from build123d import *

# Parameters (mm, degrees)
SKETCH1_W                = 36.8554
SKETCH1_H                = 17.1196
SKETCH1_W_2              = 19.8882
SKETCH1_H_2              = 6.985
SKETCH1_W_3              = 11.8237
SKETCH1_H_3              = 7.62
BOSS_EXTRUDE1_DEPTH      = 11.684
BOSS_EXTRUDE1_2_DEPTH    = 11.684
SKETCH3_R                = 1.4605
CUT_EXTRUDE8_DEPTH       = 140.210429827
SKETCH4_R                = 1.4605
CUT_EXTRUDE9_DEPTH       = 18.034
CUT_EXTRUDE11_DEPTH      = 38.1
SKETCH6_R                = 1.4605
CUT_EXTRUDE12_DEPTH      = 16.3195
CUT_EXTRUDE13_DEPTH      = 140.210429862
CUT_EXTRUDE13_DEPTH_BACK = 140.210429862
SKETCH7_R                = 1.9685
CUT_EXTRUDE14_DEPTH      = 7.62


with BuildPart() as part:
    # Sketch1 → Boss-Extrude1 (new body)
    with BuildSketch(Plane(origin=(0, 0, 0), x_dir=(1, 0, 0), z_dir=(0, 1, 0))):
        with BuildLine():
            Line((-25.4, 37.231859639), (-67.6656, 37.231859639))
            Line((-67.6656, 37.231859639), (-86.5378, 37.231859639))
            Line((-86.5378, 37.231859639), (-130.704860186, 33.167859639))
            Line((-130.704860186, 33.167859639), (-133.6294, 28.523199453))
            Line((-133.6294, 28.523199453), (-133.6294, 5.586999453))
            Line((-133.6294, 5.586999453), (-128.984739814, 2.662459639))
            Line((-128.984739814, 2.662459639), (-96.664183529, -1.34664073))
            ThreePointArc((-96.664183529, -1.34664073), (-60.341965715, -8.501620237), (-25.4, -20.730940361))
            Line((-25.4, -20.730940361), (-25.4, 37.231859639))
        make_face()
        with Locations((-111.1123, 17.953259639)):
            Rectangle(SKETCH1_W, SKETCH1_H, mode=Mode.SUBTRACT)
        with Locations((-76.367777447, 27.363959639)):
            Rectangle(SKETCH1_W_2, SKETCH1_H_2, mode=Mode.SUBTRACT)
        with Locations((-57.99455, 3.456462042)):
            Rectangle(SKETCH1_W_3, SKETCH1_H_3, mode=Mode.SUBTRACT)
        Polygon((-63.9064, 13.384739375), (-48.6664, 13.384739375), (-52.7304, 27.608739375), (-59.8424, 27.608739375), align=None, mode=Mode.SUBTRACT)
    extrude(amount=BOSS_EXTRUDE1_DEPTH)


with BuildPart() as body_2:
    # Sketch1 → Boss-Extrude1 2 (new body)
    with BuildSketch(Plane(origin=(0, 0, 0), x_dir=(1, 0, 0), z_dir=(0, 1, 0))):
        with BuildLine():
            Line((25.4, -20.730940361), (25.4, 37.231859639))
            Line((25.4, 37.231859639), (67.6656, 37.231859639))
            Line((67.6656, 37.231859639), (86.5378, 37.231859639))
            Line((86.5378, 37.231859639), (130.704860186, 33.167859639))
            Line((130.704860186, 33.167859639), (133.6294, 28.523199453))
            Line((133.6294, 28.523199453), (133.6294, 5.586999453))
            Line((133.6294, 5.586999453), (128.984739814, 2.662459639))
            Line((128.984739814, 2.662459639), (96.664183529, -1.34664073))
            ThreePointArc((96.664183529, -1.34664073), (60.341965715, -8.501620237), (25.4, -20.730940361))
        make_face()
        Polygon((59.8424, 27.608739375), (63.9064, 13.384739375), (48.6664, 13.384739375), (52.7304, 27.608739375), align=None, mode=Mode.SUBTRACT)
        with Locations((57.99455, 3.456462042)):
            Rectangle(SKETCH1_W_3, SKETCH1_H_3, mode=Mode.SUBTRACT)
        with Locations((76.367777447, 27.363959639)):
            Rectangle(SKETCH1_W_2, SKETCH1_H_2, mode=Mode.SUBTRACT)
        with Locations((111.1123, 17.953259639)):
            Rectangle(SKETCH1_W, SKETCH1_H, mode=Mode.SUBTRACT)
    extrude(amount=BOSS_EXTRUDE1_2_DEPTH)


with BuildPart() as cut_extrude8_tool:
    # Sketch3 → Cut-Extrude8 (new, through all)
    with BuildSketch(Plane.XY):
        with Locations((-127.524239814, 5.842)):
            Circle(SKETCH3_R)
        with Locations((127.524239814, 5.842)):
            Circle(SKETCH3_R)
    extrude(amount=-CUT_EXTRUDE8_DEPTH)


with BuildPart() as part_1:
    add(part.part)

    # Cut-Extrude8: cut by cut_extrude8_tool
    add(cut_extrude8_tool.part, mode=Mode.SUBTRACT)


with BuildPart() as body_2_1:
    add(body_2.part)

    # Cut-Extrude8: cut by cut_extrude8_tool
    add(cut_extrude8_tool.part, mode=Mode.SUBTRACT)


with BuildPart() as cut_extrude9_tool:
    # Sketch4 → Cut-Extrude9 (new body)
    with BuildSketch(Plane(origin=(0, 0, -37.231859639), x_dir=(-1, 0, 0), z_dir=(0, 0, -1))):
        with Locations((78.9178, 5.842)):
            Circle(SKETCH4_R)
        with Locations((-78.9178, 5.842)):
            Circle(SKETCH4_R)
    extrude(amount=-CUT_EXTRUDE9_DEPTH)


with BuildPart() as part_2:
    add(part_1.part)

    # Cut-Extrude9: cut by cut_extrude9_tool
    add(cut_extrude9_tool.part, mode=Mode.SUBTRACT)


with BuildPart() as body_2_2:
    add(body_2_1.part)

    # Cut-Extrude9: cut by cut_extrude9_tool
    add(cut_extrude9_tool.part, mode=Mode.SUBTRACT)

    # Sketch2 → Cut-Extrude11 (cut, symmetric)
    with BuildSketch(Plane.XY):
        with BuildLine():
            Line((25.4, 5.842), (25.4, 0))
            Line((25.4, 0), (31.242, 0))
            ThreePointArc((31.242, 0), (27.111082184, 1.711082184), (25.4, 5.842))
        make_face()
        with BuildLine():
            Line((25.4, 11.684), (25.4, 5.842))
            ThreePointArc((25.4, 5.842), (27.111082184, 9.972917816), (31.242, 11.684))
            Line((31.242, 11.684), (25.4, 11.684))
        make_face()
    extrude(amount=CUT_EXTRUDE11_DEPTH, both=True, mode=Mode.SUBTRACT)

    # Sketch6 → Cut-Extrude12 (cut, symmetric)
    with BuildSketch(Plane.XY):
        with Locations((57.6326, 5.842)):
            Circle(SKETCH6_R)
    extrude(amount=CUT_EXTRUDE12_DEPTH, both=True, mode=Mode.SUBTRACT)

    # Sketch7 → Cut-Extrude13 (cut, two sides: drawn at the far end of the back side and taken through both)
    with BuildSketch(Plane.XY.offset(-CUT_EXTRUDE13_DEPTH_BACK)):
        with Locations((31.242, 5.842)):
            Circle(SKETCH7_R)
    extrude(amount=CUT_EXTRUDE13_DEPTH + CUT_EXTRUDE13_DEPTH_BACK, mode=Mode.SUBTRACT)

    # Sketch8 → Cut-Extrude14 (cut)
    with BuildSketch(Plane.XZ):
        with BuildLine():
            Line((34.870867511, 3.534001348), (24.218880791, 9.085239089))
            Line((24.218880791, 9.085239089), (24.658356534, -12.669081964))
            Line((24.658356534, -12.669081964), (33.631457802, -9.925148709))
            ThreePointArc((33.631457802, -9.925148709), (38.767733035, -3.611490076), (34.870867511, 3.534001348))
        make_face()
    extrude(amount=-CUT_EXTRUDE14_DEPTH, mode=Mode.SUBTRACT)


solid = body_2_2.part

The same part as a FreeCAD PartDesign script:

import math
import FreeCAD as App
import Part
import Sketcher
Q = App.Units.Quantity

doc = App.newDocument("Part")
params = doc.addObject("Spreadsheet::Sheet", "Params")
for row, (alias, value) in enumerate([
    ("sketch1_width", "0.6 in"),
    ("sketch1_height", "0.3 in"),
    ("sketch1_width2", "0.28 in"),
    ("sketch1_width3", "2.407 in"),
    ("sketch1_width4", "1.451 in"),
    ("pad1_length", "0.46 in"),
    ("sketch2_width", "0.6 in"),
    ("sketch2_height", "0.3 in"),
    ("sketch2_width2", "0.28 in"),
    ("sketch2_width3", "2.407 in"),
    ("sketch2_width4", "1.451 in"),
    ("pad2_length", "0.46 in"),
    ("sketch3_diameter", "0.115 in"),
    ("pad3_length", "140.21043 mm"),
    ("sketch4_diameter", "0.115 in"),
    ("pad4_length", "0.71 in"),
    ("sketch5_radius", "0.23 in"),
    ("pocket1_length", "3 in"),
    ("sketch6_diameter", "0.115 in"),
    ("pocket2_length", "1.285 in"),
    ("sketch7_diameter", "0.155 in"),
    ("pocket4_length", "0.3 in"),
], start=1):
    params.set(f"A{row}", alias)
    params.set(f"B{row}", "=" + value)
    params.setAlias(f"B{row}", alias)

body = doc.addObject("PartDesign::Body", "Body")

# Sketch on XZ plane
sketch1 = doc.addObject("Sketcher::SketchObject", "Sketch")
body.addObject(sketch1)
sketch1.AttachmentSupport = (doc.XZ_Plane, [""])
sketch1.MapMode = "FlatFace"
sketch1.addGeometry(Part.LineSegment(App.Vector(-25, -37, 0), App.Vector(-87, -37, 0)), False)
sketch1.addGeometry(Part.LineSegment(App.Vector(-87, -37, 0), App.Vector(-131, -33, 0)), False)
sketch1.addGeometry(Part.LineSegment(App.Vector(-131, -33, 0), App.Vector(-134, -29, 0)), False)
sketch1.addGeometry(Part.LineSegment(App.Vector(-134, -29, 0), App.Vector(-134, -6, 0)), False)
sketch1.addGeometry(Part.LineSegment(App.Vector(-134, -6, 0), App.Vector(-129, -3, 0)), False)
sketch1.addGeometry(Part.LineSegment(App.Vector(-129, -3, 0), App.Vector(-97, 1, 0)), False)
sketch1.addGeometry(Part.ArcOfCircle(Part.Circle(App.Vector(-129, 260, 0), App.Vector(0, 0, 1), 261), math.radians(-82.93), math.radians(-66.64)), False)
sketch1.addGeometry(Part.LineSegment(App.Vector(-25, 21, 0), App.Vector(-25, -37, 0)), False)
sketch1.addGeometry(Part.LineSegment(App.Vector(-52, 0, 0), App.Vector(-64, 0, 0)), False)
sketch1.addGeometry(Part.LineSegment(App.Vector(-64, 0, 0), App.Vector(-64, -7, 0)), False)
sketch1.addGeometry(Part.LineSegment(App.Vector(-64, -7, 0), App.Vector(-52, -7, 0)), False)
sketch1.addGeometry(Part.LineSegment(App.Vector(-52, -7, 0), App.Vector(-52, 0, 0)), False)
sketch1.addGeometry(Part.LineSegment(App.Vector(-93, -9, 0), App.Vector(-130, -9, 0)), False)
sketch1.addGeometry(Part.LineSegment(App.Vector(-130, -9, 0), App.Vector(-130, -27, 0)), False)
sketch1.addGeometry(Part.LineSegment(App.Vector(-130, -27, 0), App.Vector(-93, -27, 0)), False)
sketch1.addGeometry(Part.LineSegment(App.Vector(-93, -27, 0), App.Vector(-93, -9, 0)), False)
sketch1.addGeometry(Part.LineSegment(App.Vector(-49, -13, 0), App.Vector(-64, -13, 0)), False)
sketch1.addGeometry(Part.LineSegment(App.Vector(-64, -13, 0), App.Vector(-60, -28, 0)), False)
sketch1.addGeometry(Part.LineSegment(App.Vector(-60, -28, 0), App.Vector(-53, -28, 0)), False)
sketch1.addGeometry(Part.LineSegment(App.Vector(-53, -28, 0), App.Vector(-49, -13, 0)), False)
sketch1.addGeometry(Part.LineSegment(App.Vector(-66, -24, 0), App.Vector(-86, -24, 0)), False)
sketch1.addGeometry(Part.LineSegment(App.Vector(-86, -24, 0), App.Vector(-86, -31, 0)), False)
sketch1.addGeometry(Part.LineSegment(App.Vector(-86, -31, 0), App.Vector(-66, -31, 0)), False)
sketch1.addGeometry(Part.LineSegment(App.Vector(-66, -31, 0), App.Vector(-66, -24, 0)), False)
sketch1.addConstraint(Sketcher.Constraint("Coincident", 0, 2, 1, 1))
sketch1.addConstraint(Sketcher.Constraint("Coincident", 1, 2, 2, 1))
sketch1.addConstraint(Sketcher.Constraint("Coincident", 2, 2, 3, 1))
sketch1.addConstraint(Sketcher.Constraint("Coincident", 3, 2, 4, 1))
sketch1.addConstraint(Sketcher.Constraint("Coincident", 4, 2, 5, 1))
sketch1.addConstraint(Sketcher.Constraint("Tangent", 5, 2, 6, 1))
sketch1.addConstraint(Sketcher.Constraint("Coincident", 6, 2, 7, 1))
sketch1.addConstraint(Sketcher.Constraint("Coincident", 7, 2, 0, 1))
sketch1.addConstraint(Sketcher.Constraint("Coincident", 8, 2, 9, 1))
sketch1.addConstraint(Sketcher.Constraint("Coincident", 9, 2, 10, 1))
sketch1.addConstraint(Sketcher.Constraint("Coincident", 10, 2, 11, 1))
sketch1.addConstraint(Sketcher.Constraint("Coincident", 11, 2, 8, 1))
sketch1.addConstraint(Sketcher.Constraint("Coincident", 12, 2, 13, 1))
sketch1.addConstraint(Sketcher.Constraint("Coincident", 13, 2, 14, 1))
sketch1.addConstraint(Sketcher.Constraint("Coincident", 14, 2, 15, 1))
sketch1.addConstraint(Sketcher.Constraint("Coincident", 15, 2, 12, 1))
sketch1.addConstraint(Sketcher.Constraint("Coincident", 16, 2, 17, 1))
sketch1.addConstraint(Sketcher.Constraint("Coincident", 17, 2, 18, 1))
sketch1.addConstraint(Sketcher.Constraint("Coincident", 18, 2, 19, 1))
sketch1.addConstraint(Sketcher.Constraint("Coincident", 19, 2, 16, 1))
sketch1.addConstraint(Sketcher.Constraint("Coincident", 20, 2, 21, 1))
sketch1.addConstraint(Sketcher.Constraint("Coincident", 21, 2, 22, 1))
sketch1.addConstraint(Sketcher.Constraint("Coincident", 22, 2, 23, 1))
sketch1.addConstraint(Sketcher.Constraint("Coincident", 23, 2, 20, 1))
sketch1.addConstraint(Sketcher.Constraint("Horizontal", 0))
sketch1.addConstraint(Sketcher.Constraint("Vertical", 3))
sketch1.addConstraint(Sketcher.Constraint("Vertical", 7))
sketch1.addConstraint(Sketcher.Constraint("Horizontal", 8))
sketch1.addConstraint(Sketcher.Constraint("Vertical", 9))
sketch1.addConstraint(Sketcher.Constraint("Horizontal", 10))
sketch1.addConstraint(Sketcher.Constraint("Vertical", 11))
sketch1.addConstraint(Sketcher.Constraint("Horizontal", 12))
sketch1.addConstraint(Sketcher.Constraint("Vertical", 13))
sketch1.addConstraint(Sketcher.Constraint("Horizontal", 14))
sketch1.addConstraint(Sketcher.Constraint("Vertical", 15))
sketch1.addConstraint(Sketcher.Constraint("Horizontal", 16))
sketch1.addConstraint(Sketcher.Constraint("Horizontal", 18))
sketch1.addConstraint(Sketcher.Constraint("Horizontal", 20))
sketch1.addConstraint(Sketcher.Constraint("Vertical", 21))
sketch1.addConstraint(Sketcher.Constraint("Horizontal", 22))
sketch1.addConstraint(Sketcher.Constraint("Vertical", 23))
sketch1.addConstraint(Sketcher.Constraint("Perpendicular", 2, 4))
sketch1.addConstraint(Sketcher.Constraint("Vertical", 9, 2, 16, 2))
sketch1.addConstraint(Sketcher.Constraint("Equal", 2, 4))
sketch1.addConstraint(Sketcher.Constraint("Equal", 17, 19))
sketch1.addConstraint(Sketcher.Constraint("DistanceX", 16, 2, 16, 1, Q("0.6 in")))
sketch1.addConstraint(Sketcher.Constraint("DistanceY", 9, 2, 9, 1, Q("0.3 in")))
sketch1.addConstraint(Sketcher.Constraint("DistanceX", 6, 2, -1, 1, Q("1 in")))
sketch1.addConstraint(Sketcher.Constraint("DistanceX", 18, 1, 18, 2, Q("0.28 in")))
sketch1.addConstraint(Sketcher.Constraint("DistanceX", 12, 2, -1, 1, Q("5.1 in")))
sketch1.addConstraint(Sketcher.Constraint("DistanceX", 0, 2, 0, 1, Q("2.407 in")))
sketch1.addConstraint(Sketcher.Constraint("DistanceX", 12, 2, 12, 1, Q("1.451 in")))
sketch1.addConstraint(Sketcher.Constraint("DistanceX", 20, 2, 20, 1, Q("0.783 in")))
sketch1.addConstraint(Sketcher.Constraint("DistanceY", 3, 1, 3, 2, Q("0.903 in")))
sketch1.addConstraint(Sketcher.Constraint("DistanceY", 7, 2, 7, 1, Q("2.282 in")))
sketch1.addConstraint(Sketcher.Constraint("DistanceY", 13, 2, 13, 1, Q("0.674 in")))
sketch1.addConstraint(Sketcher.Constraint("DistanceY", 21, 2, 21, 1, Q("0.275 in")))
sketch1.addConstraint(Sketcher.Constraint("DistanceY", 0, 2, 1, 2, Q("0.16 in")))
sketch1.addConstraint(Sketcher.Constraint("DistanceY", 17, 2, 16, 2, Q("0.56 in")))
sketch1.addConstraint(Sketcher.Constraint("DistanceY", 20, 2, 15, 2, Q("0.57 in")))
sketch1.addConstraint(Sketcher.Constraint("DistanceX", 8, 2, 8, 1, Q("0.4655 in")))
sketch1.addConstraint(Sketcher.Constraint("DistanceX", 2, 2, -1, 1, Q("5.261 in")))
sketch1.addConstraint(Sketcher.Constraint("DistanceX", 8, 2, -1, 1, Q("2.516 in")))
sketch1.addConstraint(Sketcher.Constraint("Radius", 6, Q("260.614732 mm")))
sketch1.addConstraint(Sketcher.Constraint("DistanceY", 1, 2, 4, 2, Q("1.201 in")))
sketch1.addConstraint(Sketcher.Constraint("DistanceY", 12, 2, 4, 2, Q("0.265 in")))
sketch1.addConstraint(Sketcher.Constraint("DistanceY", 2, 2, -1, 1, Q("28.523199 mm")))
sketch1.addConstraint(Sketcher.Constraint("DistanceY", 4, 2, 5, 2, Q("4.0091 mm")))
sketch1.addConstraint(Sketcher.Constraint("Distance", 1, Q("44.353639 mm")))
sketch1.addConstraint(Sketcher.Constraint("DistanceY", 16, 2, -1, 1, Q("13.384739 mm")))
sketch1.addConstraint(Sketcher.Constraint("DistanceY", -1, 1, 8, 2, Q("0.353538 mm")))
sketch1.addConstraint(Sketcher.Constraint("DistanceX", 20, 2, -1, 1, Q("86.311877 mm")))
sketch1.setExpression("Constraints[45]", "Params.sketch1_width")
sketch1.setExpression("Constraints[46]", "Params.sketch1_height")
sketch1.setExpression("Constraints[48]", "Params.sketch1_width2")
sketch1.setExpression("Constraints[50]", "Params.sketch1_width3")
sketch1.setExpression("Constraints[51]", "Params.sketch1_width4")
pad1 = doc.addObject("PartDesign::Pad", "Pad")
body.addObject(pad1)
pad1.Profile = sketch1
pad1.setExpression("Length", "Params.pad1_length")
pad1.Reversed = True
body2 = doc.addObject("PartDesign::Body", "Body001")

# Sketch on XZ plane
sketch2 = doc.addObject("Sketcher::SketchObject", "Sketch001")
body2.addObject(sketch2)
sketch2.AttachmentSupport = (doc.getObject("XZ_Plane001"), [""])
sketch2.MapMode = "FlatFace"
sketch2.addGeometry(Part.LineSegment(App.Vector(25, -37, 0), App.Vector(25, 21, 0)), False)
sketch2.addGeometry(Part.ArcOfCircle(Part.Circle(App.Vector(129, 260, 0), App.Vector(0, 0, 1), 261), math.radians(-113.36), math.radians(-97.07)), False)
sketch2.addGeometry(Part.LineSegment(App.Vector(97, 1, 0), App.Vector(129, -3, 0)), False)
sketch2.addGeometry(Part.LineSegment(App.Vector(129, -3, 0), App.Vector(134, -6, 0)), False)
sketch2.addGeometry(Part.LineSegment(App.Vector(134, -6, 0), App.Vector(134, -29, 0)), False)
sketch2.addGeometry(Part.LineSegment(App.Vector(134, -29, 0), App.Vector(131, -33, 0)), False)
sketch2.addGeometry(Part.LineSegment(App.Vector(131, -33, 0), App.Vector(87, -37, 0)), False)
sketch2.addGeometry(Part.LineSegment(App.Vector(87, -37, 0), App.Vector(25, -37, 0)), False)
sketch2.addGeometry(Part.LineSegment(App.Vector(52, 0, 0), App.Vector(52, -7, 0)), False)
sketch2.addGeometry(Part.LineSegment(App.Vector(52, -7, 0), App.Vector(64, -7, 0)), False)
sketch2.addGeometry(Part.LineSegment(App.Vector(64, -7, 0), App.Vector(64, 0, 0)), False)
sketch2.addGeometry(Part.LineSegment(App.Vector(64, 0, 0), App.Vector(52, 0, 0)), False)
sketch2.addGeometry(Part.LineSegment(App.Vector(93, -9, 0), App.Vector(93, -27, 0)), False)
sketch2.addGeometry(Part.LineSegment(App.Vector(93, -27, 0), App.Vector(130, -27, 0)), False)
sketch2.addGeometry(Part.LineSegment(App.Vector(130, -27, 0), App.Vector(130, -9, 0)), False)
sketch2.addGeometry(Part.LineSegment(App.Vector(130, -9, 0), App.Vector(93, -9, 0)), False)
sketch2.addGeometry(Part.LineSegment(App.Vector(60, -28, 0), App.Vector(64, -13, 0)), False)
sketch2.addGeometry(Part.LineSegment(App.Vector(64, -13, 0), App.Vector(49, -13, 0)), False)
sketch2.addGeometry(Part.LineSegment(App.Vector(49, -13, 0), App.Vector(53, -28, 0)), False)
sketch2.addGeometry(Part.LineSegment(App.Vector(53, -28, 0), App.Vector(60, -28, 0)), False)
sketch2.addGeometry(Part.LineSegment(App.Vector(66, -24, 0), App.Vector(66, -31, 0)), False)
sketch2.addGeometry(Part.LineSegment(App.Vector(66, -31, 0), App.Vector(86, -31, 0)), False)
sketch2.addGeometry(Part.LineSegment(App.Vector(86, -31, 0), App.Vector(86, -24, 0)), False)
sketch2.addGeometry(Part.LineSegment(App.Vector(86, -24, 0), App.Vector(66, -24, 0)), False)
sketch2.addConstraint(Sketcher.Constraint("Coincident", 0, 2, 1, 1))
sketch2.addConstraint(Sketcher.Constraint("Tangent", 1, 2, 2, 1))
sketch2.addConstraint(Sketcher.Constraint("Coincident", 2, 2, 3, 1))
sketch2.addConstraint(Sketcher.Constraint("Coincident", 3, 2, 4, 1))
sketch2.addConstraint(Sketcher.Constraint("Coincident", 4, 2, 5, 1))
sketch2.addConstraint(Sketcher.Constraint("Coincident", 5, 2, 6, 1))
sketch2.addConstraint(Sketcher.Constraint("Coincident", 6, 2, 7, 1))
sketch2.addConstraint(Sketcher.Constraint("Coincident", 7, 2, 0, 1))
sketch2.addConstraint(Sketcher.Constraint("Coincident", 8, 2, 9, 1))
sketch2.addConstraint(Sketcher.Constraint("Coincident", 9, 2, 10, 1))
sketch2.addConstraint(Sketcher.Constraint("Coincident", 10, 2, 11, 1))
sketch2.addConstraint(Sketcher.Constraint("Coincident", 11, 2, 8, 1))
sketch2.addConstraint(Sketcher.Constraint("Coincident", 12, 2, 13, 1))
sketch2.addConstraint(Sketcher.Constraint("Coincident", 13, 2, 14, 1))
sketch2.addConstraint(Sketcher.Constraint("Coincident", 14, 2, 15, 1))
sketch2.addConstraint(Sketcher.Constraint("Coincident", 15, 2, 12, 1))
sketch2.addConstraint(Sketcher.Constraint("Coincident", 16, 2, 17, 1))
sketch2.addConstraint(Sketcher.Constraint("Coincident", 17, 2, 18, 1))
sketch2.addConstraint(Sketcher.Constraint("Coincident", 18, 2, 19, 1))
sketch2.addConstraint(Sketcher.Constraint("Coincident", 19, 2, 16, 1))
sketch2.addConstraint(Sketcher.Constraint("Coincident", 20, 2, 21, 1))
sketch2.addConstraint(Sketcher.Constraint("Coincident", 21, 2, 22, 1))
sketch2.addConstraint(Sketcher.Constraint("Coincident", 22, 2, 23, 1))
sketch2.addConstraint(Sketcher.Constraint("Coincident", 23, 2, 20, 1))
sketch2.addConstraint(Sketcher.Constraint("Vertical", 0))
sketch2.addConstraint(Sketcher.Constraint("Vertical", 4))
sketch2.addConstraint(Sketcher.Constraint("Horizontal", 7))
sketch2.addConstraint(Sketcher.Constraint("Vertical", 8))
sketch2.addConstraint(Sketcher.Constraint("Horizontal", 9))
sketch2.addConstraint(Sketcher.Constraint("Vertical", 10))
sketch2.addConstraint(Sketcher.Constraint("Horizontal", 11))
sketch2.addConstraint(Sketcher.Constraint("Vertical", 12))
sketch2.addConstraint(Sketcher.Constraint("Horizontal", 13))
sketch2.addConstraint(Sketcher.Constraint("Vertical", 14))
sketch2.addConstraint(Sketcher.Constraint("Horizontal", 15))
sketch2.addConstraint(Sketcher.Constraint("Horizontal", 17))
sketch2.addConstraint(Sketcher.Constraint("Horizontal", 19))
sketch2.addConstraint(Sketcher.Constraint("Vertical", 20))
sketch2.addConstraint(Sketcher.Constraint("Horizontal", 21))
sketch2.addConstraint(Sketcher.Constraint("Vertical", 22))
sketch2.addConstraint(Sketcher.Constraint("Horizontal", 23))
sketch2.addConstraint(Sketcher.Constraint("Perpendicular", 3, 5))
sketch2.addConstraint(Sketcher.Constraint("Vertical", 10, 2, 16, 2))
sketch2.addConstraint(Sketcher.Constraint("Equal", 3, 5))
sketch2.addConstraint(Sketcher.Constraint("Equal", 16, 18))
sketch2.addConstraint(Sketcher.Constraint("DistanceX", 17, 2, 17, 1, Q("0.6 in")))
sketch2.addConstraint(Sketcher.Constraint("DistanceY", 8, 2, 8, 1, Q("0.3 in")))
sketch2.addConstraint(Sketcher.Constraint("DistanceX", -1, 1, 0, 2, Q("1 in")))
sketch2.addConstraint(Sketcher.Constraint("DistanceX", 19, 1, 19, 2, Q("0.28 in")))
sketch2.addConstraint(Sketcher.Constraint("DistanceX", -1, 1, 13, 2, Q("5.1 in")))
sketch2.addConstraint(Sketcher.Constraint("DistanceX", 7, 2, 7, 1, Q("2.407 in")))
sketch2.addConstraint(Sketcher.Constraint("DistanceX", 13, 1, 13, 2, Q("1.451 in")))
sketch2.addConstraint(Sketcher.Constraint("DistanceX", 21, 1, 21, 2, Q("0.783 in")))
sketch2.addConstraint(Sketcher.Constraint("DistanceY", 0, 1, 0, 2, Q("2.282 in")))
sketch2.addConstraint(Sketcher.Constraint("DistanceY", 4, 2, 4, 1, Q("0.903 in")))
sketch2.addConstraint(Sketcher.Constraint("DistanceY", 12, 2, 12, 1, Q("0.674 in")))
sketch2.addConstraint(Sketcher.Constraint("DistanceY", 20, 2, 20, 1, Q("0.275 in")))
sketch2.addConstraint(Sketcher.Constraint("DistanceY", 6, 2, 5, 2, Q("0.16 in")))
sketch2.addConstraint(Sketcher.Constraint("DistanceY", 18, 2, 17, 2, Q("0.56 in")))
sketch2.addConstraint(Sketcher.Constraint("DistanceY", 22, 2, 15, 2, Q("0.57 in")))
sketch2.addConstraint(Sketcher.Constraint("DistanceX", 9, 1, 9, 2, Q("0.4655 in")))
sketch2.addConstraint(Sketcher.Constraint("DistanceX", -1, 1, 3, 2, Q("5.261 in")))
sketch2.addConstraint(Sketcher.Constraint("DistanceX", -1, 1, 9, 2, Q("2.516 in")))
sketch2.addConstraint(Sketcher.Constraint("Radius", 1, Q("260.614732 mm")))
sketch2.addConstraint(Sketcher.Constraint("DistanceY", 2, 2, 0, 2, Q("0.921 in")))
sketch2.addConstraint(Sketcher.Constraint("DistanceY", 6, 2, 12, 2, Q("0.422 in")))
sketch2.addConstraint(Sketcher.Constraint("DistanceY", 3, 2, -1, 1, Q("5.586999 mm")))
sketch2.addConstraint(Sketcher.Constraint("DistanceY", 1, 2, 0, 2, Q("19.3843 mm")))
sketch2.addConstraint(Sketcher.Constraint("Distance", 6, Q("44.353639 mm")))
sketch2.addConstraint(Sketcher.Constraint("DistanceY", 16, 2, -1, 1, Q("13.384739 mm")))
sketch2.addConstraint(Sketcher.Constraint("DistanceY", 8, 2, -1, 1, Q("7.266462 mm")))
sketch2.addConstraint(Sketcher.Constraint("DistanceX", -1, 1, 20, 2, Q("66.423677 mm")))
sketch2.setExpression("Constraints[45]", "Params.sketch2_width")
sketch2.setExpression("Constraints[46]", "Params.sketch2_height")
sketch2.setExpression("Constraints[48]", "Params.sketch2_width2")
sketch2.setExpression("Constraints[50]", "Params.sketch2_width3")
sketch2.setExpression("Constraints[51]", "Params.sketch2_width4")
pad2 = doc.addObject("PartDesign::Pad", "Pad001")
body2.addObject(pad2)
pad2.Profile = sketch2
pad2.setExpression("Length", "Params.pad2_length")
pad2.Reversed = True
body3 = doc.addObject("PartDesign::Body", "Body002")
body3.AllowCompound = True

# Sketch on XY plane
sketch3 = doc.addObject("Sketcher::SketchObject", "Sketch002")
body3.addObject(sketch3)
sketch3.AttachmentSupport = (doc.getObject("XY_Plane002"), [""])
sketch3.MapMode = "FlatFace"
sketch3.addGeometry(Part.Circle(App.Vector(-127.5, 5.8, 0), App.Vector(0, 0, 1), 1.5), False)
sketch3.addGeometry(Part.Circle(App.Vector(127.5, 5.8, 0), App.Vector(0, 0, 1), 1.5), False)
sketch3.addConstraint(Sketcher.Constraint("Equal", 0, 1))
sketch3.addConstraint(Sketcher.Constraint("Symmetric", 0, 3, 1, 3, -2))
sketch3.addConstraint(Sketcher.Constraint("Diameter", 0, Q("0.115 in")))
sketch3.addConstraint(Sketcher.Constraint("DistanceY", -1, 1, 0, 3, Q("0.23 in")))
sketch3.addConstraint(Sketcher.Constraint("DistanceX", 0, 3, -1, 1, Q("127.52424 mm")))
sketch3.setExpression("Constraints[2]", "Params.sketch3_diameter")
pad3 = doc.addObject("PartDesign::Pad", "Pad002")
body3.addObject(pad3)
pad3.Profile = sketch3
pad3.setExpression("Length", "Params.pad3_length")
pad3.Reversed = True
doc.recompute()

body4 = doc.addObject("PartDesign::Body", "Body003")
body4.BaseFeature = body3
boolean = doc.addObject("PartDesign::Boolean", "Boolean")
body.addObject(boolean)
boolean.Type = "Cut"
boolean.addObjects([body4])
doc.recompute()

boolean2 = doc.addObject("PartDesign::Boolean", "Boolean001")
body2.addObject(boolean2)
boolean2.Type = "Cut"
boolean2.addObjects([body3])
body5 = doc.addObject("PartDesign::Body", "Body004")
body5.AllowCompound = True

# Sketch on XY plane
sketch4 = doc.addObject("Sketcher::SketchObject", "Sketch003")
body5.addObject(sketch4)
sketch4.AttachmentSupport = (doc.getObject("XY_Plane004"), [""])
sketch4.MapMode = "FlatFace"
sketch4.AttachmentOffset = App.Placement(App.Vector(0, 0, -37.23186), App.Rotation())
sketch4.addGeometry(Part.Circle(App.Vector(-78.9, 5.8, 0), App.Vector(0, 0, 1), 1.5), False)
sketch4.addGeometry(Part.Circle(App.Vector(78.9, 5.8, 0), App.Vector(0, 0, 1), 1.5), False)
sketch4.addConstraint(Sketcher.Constraint("Equal", 0, 1))
sketch4.addConstraint(Sketcher.Constraint("Symmetric", 0, 3, 1, 3, -2))
sketch4.addConstraint(Sketcher.Constraint("Diameter", 0, Q("0.115 in")))
sketch4.addConstraint(Sketcher.Constraint("DistanceY", -1, 1, 0, 3, Q("0.23 in")))
sketch4.addConstraint(Sketcher.Constraint("DistanceX", 0, 3, -1, 1, Q("3.107 in")))
sketch4.setExpression("Constraints[2]", "Params.sketch4_diameter")
pad4 = doc.addObject("PartDesign::Pad", "Pad003")
body5.addObject(pad4)
pad4.Profile = sketch4
pad4.setExpression("Length", "Params.pad4_length")
doc.recompute()

body6 = doc.addObject("PartDesign::Body", "Body005")
body6.BaseFeature = body5
boolean3 = doc.addObject("PartDesign::Boolean", "Boolean002")
body.addObject(boolean3)
boolean3.Type = "Cut"
boolean3.addObjects([body6])
doc.recompute()

boolean4 = doc.addObject("PartDesign::Boolean", "Boolean003")
body2.addObject(boolean4)
boolean4.Type = "Cut"
boolean4.addObjects([body5])

# Sketch on XY plane
sketch5 = doc.addObject("Sketcher::SketchObject", "Sketch004")
body2.addObject(sketch5)
sketch5.AttachmentSupport = (doc.getObject("XY_Plane001"), [""])
sketch5.MapMode = "FlatFace"
sketch5.addGeometry(Part.LineSegment(App.Vector(25, 6, 0), App.Vector(25, 0, 0)), False)
sketch5.addGeometry(Part.LineSegment(App.Vector(25, 0, 0), App.Vector(31, 0, 0)), False)
sketch5.addGeometry(Part.ArcOfCircle(Part.Circle(App.Vector(31, 6, 0), App.Vector(0, 0, 1), 6), math.radians(180), math.radians(270)), False)
sketch5.addGeometry(Part.LineSegment(App.Vector(25, 12, 0), App.Vector(25, 6, 0)), False)
sketch5.addGeometry(Part.ArcOfCircle(Part.Circle(App.Vector(31, 6, 0), App.Vector(0, 0, 1), 6), math.radians(90), math.radians(180)), False)
sketch5.addGeometry(Part.LineSegment(App.Vector(31, 12, 0), App.Vector(25, 12, 0)), False)
sketch5.addConstraint(Sketcher.Constraint("Coincident", 0, 2, 1, 1))
sketch5.addConstraint(Sketcher.Constraint("Tangent", 1, 2, 2, 2))
sketch5.addConstraint(Sketcher.Constraint("Tangent", 2, 1, 0, 1))
sketch5.addConstraint(Sketcher.Constraint("Tangent", 3, 2, 4, 2))
sketch5.addConstraint(Sketcher.Constraint("Tangent", 4, 1, 5, 1))
sketch5.addConstraint(Sketcher.Constraint("Coincident", 5, 2, 3, 1))
sketch5.addConstraint(Sketcher.Constraint("Vertical", 0))
sketch5.addConstraint(Sketcher.Constraint("Horizontal", 1))
sketch5.addConstraint(Sketcher.Constraint("Vertical", 3))
sketch5.addConstraint(Sketcher.Constraint("Horizontal", 5))
sketch5.addConstraint(Sketcher.Constraint("Coincident", 4, 3, 2, 3))
sketch5.addConstraint(Sketcher.Constraint("Equal", 2, 4))
sketch5.addConstraint(Sketcher.Constraint("PointOnObject", 0, 2, -1))
sketch5.addConstraint(Sketcher.Constraint("Radius", 2, Q("0.23 in")))
sketch5.addConstraint(Sketcher.Constraint("DistanceX", -1, 1, 0, 2, Q("1 in")))
sketch5.setExpression("Constraints[13]", "Params.sketch5_radius")
pocket1 = doc.addObject("PartDesign::Pocket", "Pocket")
body2.addObject(pocket1)
pocket1.Profile = sketch5
pocket1.setExpression("Length", "Params.pocket1_length")
pocket1.Midplane = True

# Sketch on XY plane
sketch6 = doc.addObject("Sketcher::SketchObject", "Sketch005")
body2.addObject(sketch6)
sketch6.AttachmentSupport = (doc.getObject("XY_Plane001"), [""])
sketch6.MapMode = "FlatFace"
sketch6.addGeometry(Part.Circle(App.Vector(57.6, 5.8, 0), App.Vector(0, 0, 1), 1.5), False)
sketch6.addConstraint(Sketcher.Constraint("Diameter", 0, Q("0.115 in")))
sketch6.addConstraint(Sketcher.Constraint("DistanceY", -1, 1, 0, 3, Q("0.23 in")))
sketch6.addConstraint(Sketcher.Constraint("DistanceX", -1, 1, 0, 3, Q("2.269 in")))
sketch6.setExpression("Constraints[0]", "Params.sketch6_diameter")
pocket2 = doc.addObject("PartDesign::Pocket", "Pocket001")
body2.addObject(pocket2)
pocket2.Profile = sketch6
pocket2.setExpression("Length", "Params.pocket2_length")
pocket2.Midplane = True

# Sketch on XY plane
sketch7 = doc.addObject("Sketcher::SketchObject", "Sketch006")
body2.addObject(sketch7)
sketch7.AttachmentSupport = (doc.getObject("XY_Plane001"), [""])
sketch7.MapMode = "FlatFace"
sketch7.addGeometry(Part.Circle(App.Vector(31.2, 5.8, 0), App.Vector(0, 0, 1), 2), False)
sketch7.addConstraint(Sketcher.Constraint("Diameter", 0, Q("0.155 in")))
sketch7.addConstraint(Sketcher.Constraint("DistanceX", -1, 1, 0, 3, Q("1.23 in")))
sketch7.addConstraint(Sketcher.Constraint("DistanceY", -1, 1, 0, 3, Q("0.23 in")))
sketch7.setExpression("Constraints[0]", "Params.sketch7_diameter")
pocket3 = doc.addObject("PartDesign::Pocket", "Pocket002")
body2.addObject(pocket3)
pocket3.Profile = sketch7
pocket3.Type = "ThroughAll"
pocket3.Midplane = True

# Sketch on XZ plane
sketch8 = doc.addObject("Sketcher::SketchObject", "Sketch007")
body2.addObject(sketch8)
sketch8.AttachmentSupport = (doc.getObject("XZ_Plane001"), [""])
sketch8.MapMode = "FlatFace"
sketch8.addGeometry(Part.LineSegment(App.Vector(35, 4, 0), App.Vector(24, 9, 0)), False)
sketch8.addGeometry(Part.LineSegment(App.Vector(24, 9, 0), App.Vector(25, -13, 0)), False)
sketch8.addGeometry(Part.LineSegment(App.Vector(25, -13, 0), App.Vector(34, -10, 0)), False)
sketch8.addGeometry(Part.ArcOfCircle(Part.Circle(App.Vector(31, -3, 0), App.Vector(0, 0, 1), 7), math.radians(-73), math.radians(62)), False)
sketch8.addConstraint(Sketcher.Constraint("Coincident", 0, 2, 1, 1))
sketch8.addConstraint(Sketcher.Constraint("Coincident", 1, 2, 2, 1))
sketch8.addConstraint(Sketcher.Constraint("Tangent", 2, 2, 3, 1))
sketch8.addConstraint(Sketcher.Constraint("Tangent", 3, 2, 0, 1))
sketch8.addConstraint(Sketcher.Constraint("Radius", 3, Q("0.2875 in")))
sketch8.addConstraint(Sketcher.Constraint("DistanceX", -1, 1, 3, 3, Q("1.24 in")))
sketch8.addConstraint(Sketcher.Constraint("DistanceY", -1, 1, 3, 2, Q("3.534001 mm")))
sketch8.addConstraint(Sketcher.Constraint("DistanceY", 3, 3, 0, 2, Q("12.027099 mm")))
sketch8.addConstraint(Sketcher.Constraint("DistanceX", 1, 2, 2, 2, Q("8.973101 mm")))
sketch8.addConstraint(Sketcher.Constraint("Distance", 1, Q("21.75876 mm")))
sketch8.addConstraint(Sketcher.Constraint("DistanceY", 3, 3, -1, 1, Q("2.94186 mm")))
pocket4 = doc.addObject("PartDesign::Pocket", "Pocket003")
body2.addObject(pocket4)
pocket4.Profile = sketch8
pocket4.setExpression("Length", "Params.pocket4_length")
body.Visibility = False

doc.recompute()
